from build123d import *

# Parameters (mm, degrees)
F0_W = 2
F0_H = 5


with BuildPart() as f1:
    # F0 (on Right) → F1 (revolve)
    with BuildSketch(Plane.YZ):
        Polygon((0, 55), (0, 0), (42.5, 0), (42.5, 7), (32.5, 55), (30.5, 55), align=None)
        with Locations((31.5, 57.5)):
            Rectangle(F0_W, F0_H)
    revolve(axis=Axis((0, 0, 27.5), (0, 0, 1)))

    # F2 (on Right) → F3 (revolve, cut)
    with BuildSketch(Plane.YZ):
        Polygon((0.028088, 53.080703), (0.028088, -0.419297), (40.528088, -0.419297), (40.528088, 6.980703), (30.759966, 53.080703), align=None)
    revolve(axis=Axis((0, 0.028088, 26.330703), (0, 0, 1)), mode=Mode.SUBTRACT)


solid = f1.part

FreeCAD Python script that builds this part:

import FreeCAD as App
import Part
import Sketcher
from FreeCAD import Vector


def add_polygon(sketch, points):
    """Adds a closed chain of lines whose ends are joined by coincident constraints."""
    first, n = sketch.GeometryCount, len(points)
    for a, b in zip(points, points[1:] + points[:1]):
        sketch.addGeometry(Part.LineSegment(App.Vector(*a, 0), App.Vector(*b, 0)), False)
    for i in range(n):
        sketch.addConstraint(Sketcher.Constraint("Coincident", first + i, 2, first + (i + 1) % n, 1))

doc = App.newDocument("Part")
body = doc.addObject("PartDesign::Body", "Body")

# Sketch on YZ plane
sketch1 = body.newObject("Sketcher::SketchObject", "Sketch")
sketch1.AttachmentSupport = (doc.getObject("YZ_Plane"), [""])
sketch1.MapMode = "FlatFace"
add_polygon(sketch1, [(0, 55), (0, 0), (42.5, 0), (42.5, 7), (32.5, 55), (32.5, 60), (30.5, 60), (30.5, 55)])  # lines 0-7
sketch1.addConstraint(Sketcher.Constraint("Vertical", 0))
sketch1.addConstraint(Sketcher.Constraint("Horizontal", 1))
sketch1.addConstraint(Sketcher.Constraint("Vertical", 2))
sketch1.addConstraint(Sketcher.Constraint("Vertical", 4))
sketch1.addConstraint(Sketcher.Constraint("Horizontal", 5))
sketch1.addConstraint(Sketcher.Constraint("Vertical", 6))
sketch1.addConstraint(Sketcher.Constraint("Horizontal", 7))
sketch1.addConstraint(Sketcher.Constraint("Coincident", 0, 2, -1, 1))
sketch1.addConstraint(Sketcher.Constraint("Horizontal", 3, 2, 6, 2))
sketch1.addConstraint(Sketcher.Constraint("DistanceX", 5, 2, 5, 1, 2.0))
sketch1.addConstraint(Sketcher.Constraint("DistanceY", 0, 2, 0, 1, 55.0))
sketch1.addConstraint(Sketcher.Constraint("DistanceY", 2, 1, 2, 2, 7.0))
sketch1.addConstraint(Sketcher.Constraint("DistanceY", 4, 1, 4, 2, 5.0))
sketch1.addConstraint(Sketcher.Constraint("DistanceX", 1, 1, 1, 2, 42.5))
sketch1.addConstraint(Sketcher.Constraint("DistanceX", 7, 2, 7, 1, 30.5))
revolution = body.newObject("PartDesign::Revolution", "Revolution")
revolution.Profile = sketch1
revolution.ReferenceAxis = (sketch1, ["V_Axis"])
revolution.Angle = 360

# Sketch on YZ plane
sketch2 = body.newObject("Sketcher::SketchObject", "Sketch001")
sketch2.AttachmentSupport = (doc.getObject("YZ_Plane"), [""])
sketch2.MapMode = "FlatFace"
add_polygon(sketch2, [(0.028088, 53.080703), (0.028088, -0.419297), (40.528088, -0.419297), (40.528088, 6.980703), (30.759966, 53.080703)])  # lines 0-4
sketch2.addGeometry(Part.LineSegment(Vector(0.028088, -0.419297, 0), Vector(0.028088, 53.080703, 0)), True)  # axis
sketch2.addConstraint(Sketcher.Constraint("Vertical", 0))
sketch2.addConstraint(Sketcher.Constraint("Horizontal", 1))
sketch2.addConstraint(Sketcher.Constraint("Vertical", 2))
sketch2.addConstraint(Sketcher.Constraint("Horizontal", 4))
sketch2.addConstraint(Sketcher.Constraint("Vertical", 5))
sketch2.addConstraint(Sketcher.Constraint("Coincident", 5, 1, 0, 2))
sketch2.addConstraint(Sketcher.Constraint("Horizontal", 3, 2, 5, 2))
sketch2.addConstraint(Sketcher.Constraint("DistanceX", 1, 1, 1, 2, 40.5))
sketch2.addConstraint(Sketcher.Constraint("DistanceY", 0, 2, 0, 1, 53.5))
sketch2.addConstraint(Sketcher.Constraint("DistanceY", 2, 1, 2, 2, 7.4))
sketch2.addConstraint(Sketcher.Constraint("Distance", 3, 47.123521))
sketch2.addConstraint(Sketcher.Constraint("DistanceX", -1, 1, 0, 2, 0.028088))
sketch2.addConstraint(Sketcher.Constraint("DistanceY", 0, 2, -1, 1, 0.419297))
groove = body.newObject("PartDesign::Groove", "Groove")
groove.Profile = sketch2
groove.ReferenceAxis = (sketch2, ["Axis0"])
groove.Angle = 360

doc.recompute()
